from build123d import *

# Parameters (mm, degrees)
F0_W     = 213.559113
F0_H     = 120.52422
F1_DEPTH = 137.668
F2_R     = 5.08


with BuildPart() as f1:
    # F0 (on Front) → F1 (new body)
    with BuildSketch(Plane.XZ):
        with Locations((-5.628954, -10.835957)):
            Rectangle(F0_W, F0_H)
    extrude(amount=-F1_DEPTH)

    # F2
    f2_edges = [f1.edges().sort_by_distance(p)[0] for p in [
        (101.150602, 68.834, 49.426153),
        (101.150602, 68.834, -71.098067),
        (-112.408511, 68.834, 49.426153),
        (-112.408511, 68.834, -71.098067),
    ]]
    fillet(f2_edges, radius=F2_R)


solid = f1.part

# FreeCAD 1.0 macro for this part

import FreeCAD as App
import Part
import Sketcher


def edges_at(feature, points):
    """Names of the edges that pass closest to the given points."""
    edges = feature.Shape.Edges
    near = lambda p: min(range(len(edges)), key=lambda i: edges[i].distToShape(Part.Vertex(*p))[0])
    return sorted({f"Edge{near(p) + 1}" for p in points})


def add_polygon(sketch, points):
    """Adds a closed chain of lines whose ends are joined by coincident constraints."""
    first, n = sketch.GeometryCount, len(points)
    for a, b in zip(points, points[1:] + points[:1]):
        sketch.addGeometry(Part.LineSegment(App.Vector(*a, 0), App.Vector(*b, 0)), False)
    for i in range(n):
        sketch.addConstraint(Sketcher.Constraint("Coincident", first + i, 2, first + (i + 1) % n, 1))

doc = App.newDocument("Part")
params = doc.addObject("Spreadsheet::Sheet", "Params")
for row, (alias, value) in enumerate([
    ("pad1_length", "5.42 in"),
    ("fillet_radius", "0.2 in"),
], start=1):
    params.set(f"A{row}", alias)
    params.set(f"B{row}", "=" + value)
    params.setAlias(f"B{row}", alias)

body = doc.addObject("PartDesign::Body", "Body")

sketch1 = body.newObject("Sketcher::SketchObject", "Sketch")
sketch1.AttachmentSupport = (doc.getObject("XZ_Plane"), [""])
sketch1.MapMode = "FlatFace"
add_polygon(sketch1, [(-112, 49), (-112, -71), (101, -71), (101, 49)])
sketch1.addConstraint([
    Sketcher.Constraint("Vertical", 0),
    Sketcher.Constraint("Horizontal", 1),
    Sketcher.Constraint("Vertical", 2),
    Sketcher.Constraint("Horizontal", 3),
    Sketcher.Constraint("DistanceY", 0, 2, 0, 1, 120.52422),
    Sketcher.Constraint("DistanceX", 1, 1, 1, 2, 213.559113),
    Sketcher.Constraint("DistanceX", 0, 2, -1, 1, 112.408511),
    Sketcher.Constraint("DistanceY", 0, 2, -1, 1, 71.098067),
])
pad1 = body.newObject("PartDesign::Pad", "Pad")
pad1.Profile = sketch1
pad1.setExpression("Length", "Params.pad1_length")
pad1.Reversed = True
doc.recompute()

fillet = body.newObject("PartDesign::Fillet", "Fillet")
fillet.Base = (pad1, edges_at(pad1, [
    (101.151, 68.834, 49.426),
    (101.151, 68.834, -71.098),
    (-112.409, 68.834, 49.426),
    (-112.409, 68.834, -71.098),
]))
fillet.setExpression("Radius", "Params.fillet_radius")

doc.recompute()
